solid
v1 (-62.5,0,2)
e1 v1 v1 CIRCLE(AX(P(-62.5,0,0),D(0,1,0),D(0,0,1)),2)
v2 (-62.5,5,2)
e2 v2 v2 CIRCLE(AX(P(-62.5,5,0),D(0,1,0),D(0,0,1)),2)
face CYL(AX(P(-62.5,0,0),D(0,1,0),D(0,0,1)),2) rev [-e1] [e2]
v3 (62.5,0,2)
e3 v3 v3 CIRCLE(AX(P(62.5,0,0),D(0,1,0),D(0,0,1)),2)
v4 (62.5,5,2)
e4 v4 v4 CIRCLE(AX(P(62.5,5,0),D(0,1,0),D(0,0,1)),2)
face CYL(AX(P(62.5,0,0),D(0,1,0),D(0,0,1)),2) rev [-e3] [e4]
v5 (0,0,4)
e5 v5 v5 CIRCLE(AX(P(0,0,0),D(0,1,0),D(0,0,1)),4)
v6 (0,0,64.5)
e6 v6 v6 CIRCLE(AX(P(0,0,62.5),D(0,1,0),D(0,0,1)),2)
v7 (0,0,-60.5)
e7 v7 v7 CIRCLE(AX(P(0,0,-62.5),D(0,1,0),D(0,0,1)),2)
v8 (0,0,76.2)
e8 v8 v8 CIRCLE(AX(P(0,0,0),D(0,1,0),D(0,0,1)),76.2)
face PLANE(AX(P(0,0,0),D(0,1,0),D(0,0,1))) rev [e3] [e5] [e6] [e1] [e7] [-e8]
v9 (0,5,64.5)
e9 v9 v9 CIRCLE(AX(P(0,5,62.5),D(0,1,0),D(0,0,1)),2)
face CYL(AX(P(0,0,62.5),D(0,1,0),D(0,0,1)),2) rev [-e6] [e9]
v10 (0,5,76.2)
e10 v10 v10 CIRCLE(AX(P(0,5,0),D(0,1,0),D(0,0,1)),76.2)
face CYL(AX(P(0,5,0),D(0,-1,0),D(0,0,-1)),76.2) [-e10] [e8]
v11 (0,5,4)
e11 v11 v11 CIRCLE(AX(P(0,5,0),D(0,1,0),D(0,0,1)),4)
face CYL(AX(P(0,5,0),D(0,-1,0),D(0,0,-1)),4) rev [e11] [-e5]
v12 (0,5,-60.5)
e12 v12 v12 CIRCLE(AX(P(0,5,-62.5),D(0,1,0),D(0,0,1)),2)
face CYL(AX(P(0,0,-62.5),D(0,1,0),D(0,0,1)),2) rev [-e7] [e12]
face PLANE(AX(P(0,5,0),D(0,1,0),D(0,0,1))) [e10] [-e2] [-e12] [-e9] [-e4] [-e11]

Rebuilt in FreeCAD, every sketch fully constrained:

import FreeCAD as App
import Part
import Sketcher
from FreeCAD import Vector
Q = App.Units.Quantity

doc = App.newDocument("Part")
body = doc.addObject("PartDesign::Body", "Body")

sketch1 = doc.addObject("Sketcher::SketchObject", "Sketch")
body.addObject(sketch1)
sketch1.AttachmentSupport = (doc.XZ_Plane, [""])
sketch1.MapMode = "FlatFace"
sketch1.addGeometry(Part.Circle(Vector(0, 0, 0), Vector(0, 0, 1), 76.2), False)
sketch1.addGeometry(Part.Circle(Vector(0, 0, 0), Vector(0, 0, 1), 4), False)
sketch1.addConstraint(Sketcher.Constraint("Coincident", 0, 3, -1, 1))
sketch1.addConstraint(Sketcher.Constraint("Coincident", 1, 3, -1, 1))
sketch1.addConstraint(Sketcher.Constraint("Diameter", 1, Q("8 mm")))
sketch1.addConstraint(Sketcher.Constraint("Diameter", 0, Q("152.4 mm")))
pad1 = doc.addObject("PartDesign::Pad", "Pad")
body.addObject(pad1)
pad1.Profile = sketch1
pad1.Length = 5
pad1.Reversed = True

sketch2 = doc.addObject("Sketcher::SketchObject", "Sketch001")
body.addObject(sketch2)
sketch2.AttachmentSupport = (doc.XZ_Plane, [""])
sketch2.MapMode = "FlatFace"
sketch2.AttachmentOffset = App.Placement(Vector(0, 0, -5), App.Rotation())
sketch2.addGeometry(Part.Circle(Vector(0, 62.5, 0), Vector(0, 0, 1), 2), False)
sketch2.addGeometry(Part.Circle(Vector(-62.5, 0, 0), Vector(0, 0, 1), 2), False)
sketch2.addGeometry(Part.Circle(Vector(0, -62.5, 0), Vector(0, 0, 1), 2), False)
sketch2.addGeometry(Part.Circle(Vector(62.5, 0, 0), Vector(0, 0, 1), 2), False)
sketch2.addConstraint(Sketcher.Constraint("Equal", 0, 1))
sketch2.addConstraint(Sketcher.Constraint("Equal", 1, 2))
sketch2.addConstraint(Sketcher.Constraint("Equal", 2, 3))
sketch2.addConstraint(Sketcher.Constraint("Symmetric", 0, 3, 2, 3, -1, 1))
sketch2.addConstraint(Sketcher.Constraint("Symmetric", 1, 3, 3, 3, -1, 1))
sketch2.addConstraint(Sketcher.Constraint("PointOnObject", 0, 3, -2))
sketch2.addConstraint(Sketcher.Constraint("PointOnObject", 1, 3, -1))
sketch2.addConstraint(Sketcher.Constraint("Diameter", 0, Q("4 mm")))
sketch2.addConstraint(Sketcher.Constraint("DistanceY", 2, 3, 0, 3, Q("125 mm")))
sketch2.addConstraint(Sketcher.Constraint("DistanceX", 1, 3, 3, 3, Q("125 mm")))
pocket1 = doc.addObject("PartDesign::Pocket", "Pocket")
body.addObject(pocket1)
pocket1.Profile = sketch2
pocket1.Type = "ThroughAll"
pocket1.Reversed = True

doc.recompute()
